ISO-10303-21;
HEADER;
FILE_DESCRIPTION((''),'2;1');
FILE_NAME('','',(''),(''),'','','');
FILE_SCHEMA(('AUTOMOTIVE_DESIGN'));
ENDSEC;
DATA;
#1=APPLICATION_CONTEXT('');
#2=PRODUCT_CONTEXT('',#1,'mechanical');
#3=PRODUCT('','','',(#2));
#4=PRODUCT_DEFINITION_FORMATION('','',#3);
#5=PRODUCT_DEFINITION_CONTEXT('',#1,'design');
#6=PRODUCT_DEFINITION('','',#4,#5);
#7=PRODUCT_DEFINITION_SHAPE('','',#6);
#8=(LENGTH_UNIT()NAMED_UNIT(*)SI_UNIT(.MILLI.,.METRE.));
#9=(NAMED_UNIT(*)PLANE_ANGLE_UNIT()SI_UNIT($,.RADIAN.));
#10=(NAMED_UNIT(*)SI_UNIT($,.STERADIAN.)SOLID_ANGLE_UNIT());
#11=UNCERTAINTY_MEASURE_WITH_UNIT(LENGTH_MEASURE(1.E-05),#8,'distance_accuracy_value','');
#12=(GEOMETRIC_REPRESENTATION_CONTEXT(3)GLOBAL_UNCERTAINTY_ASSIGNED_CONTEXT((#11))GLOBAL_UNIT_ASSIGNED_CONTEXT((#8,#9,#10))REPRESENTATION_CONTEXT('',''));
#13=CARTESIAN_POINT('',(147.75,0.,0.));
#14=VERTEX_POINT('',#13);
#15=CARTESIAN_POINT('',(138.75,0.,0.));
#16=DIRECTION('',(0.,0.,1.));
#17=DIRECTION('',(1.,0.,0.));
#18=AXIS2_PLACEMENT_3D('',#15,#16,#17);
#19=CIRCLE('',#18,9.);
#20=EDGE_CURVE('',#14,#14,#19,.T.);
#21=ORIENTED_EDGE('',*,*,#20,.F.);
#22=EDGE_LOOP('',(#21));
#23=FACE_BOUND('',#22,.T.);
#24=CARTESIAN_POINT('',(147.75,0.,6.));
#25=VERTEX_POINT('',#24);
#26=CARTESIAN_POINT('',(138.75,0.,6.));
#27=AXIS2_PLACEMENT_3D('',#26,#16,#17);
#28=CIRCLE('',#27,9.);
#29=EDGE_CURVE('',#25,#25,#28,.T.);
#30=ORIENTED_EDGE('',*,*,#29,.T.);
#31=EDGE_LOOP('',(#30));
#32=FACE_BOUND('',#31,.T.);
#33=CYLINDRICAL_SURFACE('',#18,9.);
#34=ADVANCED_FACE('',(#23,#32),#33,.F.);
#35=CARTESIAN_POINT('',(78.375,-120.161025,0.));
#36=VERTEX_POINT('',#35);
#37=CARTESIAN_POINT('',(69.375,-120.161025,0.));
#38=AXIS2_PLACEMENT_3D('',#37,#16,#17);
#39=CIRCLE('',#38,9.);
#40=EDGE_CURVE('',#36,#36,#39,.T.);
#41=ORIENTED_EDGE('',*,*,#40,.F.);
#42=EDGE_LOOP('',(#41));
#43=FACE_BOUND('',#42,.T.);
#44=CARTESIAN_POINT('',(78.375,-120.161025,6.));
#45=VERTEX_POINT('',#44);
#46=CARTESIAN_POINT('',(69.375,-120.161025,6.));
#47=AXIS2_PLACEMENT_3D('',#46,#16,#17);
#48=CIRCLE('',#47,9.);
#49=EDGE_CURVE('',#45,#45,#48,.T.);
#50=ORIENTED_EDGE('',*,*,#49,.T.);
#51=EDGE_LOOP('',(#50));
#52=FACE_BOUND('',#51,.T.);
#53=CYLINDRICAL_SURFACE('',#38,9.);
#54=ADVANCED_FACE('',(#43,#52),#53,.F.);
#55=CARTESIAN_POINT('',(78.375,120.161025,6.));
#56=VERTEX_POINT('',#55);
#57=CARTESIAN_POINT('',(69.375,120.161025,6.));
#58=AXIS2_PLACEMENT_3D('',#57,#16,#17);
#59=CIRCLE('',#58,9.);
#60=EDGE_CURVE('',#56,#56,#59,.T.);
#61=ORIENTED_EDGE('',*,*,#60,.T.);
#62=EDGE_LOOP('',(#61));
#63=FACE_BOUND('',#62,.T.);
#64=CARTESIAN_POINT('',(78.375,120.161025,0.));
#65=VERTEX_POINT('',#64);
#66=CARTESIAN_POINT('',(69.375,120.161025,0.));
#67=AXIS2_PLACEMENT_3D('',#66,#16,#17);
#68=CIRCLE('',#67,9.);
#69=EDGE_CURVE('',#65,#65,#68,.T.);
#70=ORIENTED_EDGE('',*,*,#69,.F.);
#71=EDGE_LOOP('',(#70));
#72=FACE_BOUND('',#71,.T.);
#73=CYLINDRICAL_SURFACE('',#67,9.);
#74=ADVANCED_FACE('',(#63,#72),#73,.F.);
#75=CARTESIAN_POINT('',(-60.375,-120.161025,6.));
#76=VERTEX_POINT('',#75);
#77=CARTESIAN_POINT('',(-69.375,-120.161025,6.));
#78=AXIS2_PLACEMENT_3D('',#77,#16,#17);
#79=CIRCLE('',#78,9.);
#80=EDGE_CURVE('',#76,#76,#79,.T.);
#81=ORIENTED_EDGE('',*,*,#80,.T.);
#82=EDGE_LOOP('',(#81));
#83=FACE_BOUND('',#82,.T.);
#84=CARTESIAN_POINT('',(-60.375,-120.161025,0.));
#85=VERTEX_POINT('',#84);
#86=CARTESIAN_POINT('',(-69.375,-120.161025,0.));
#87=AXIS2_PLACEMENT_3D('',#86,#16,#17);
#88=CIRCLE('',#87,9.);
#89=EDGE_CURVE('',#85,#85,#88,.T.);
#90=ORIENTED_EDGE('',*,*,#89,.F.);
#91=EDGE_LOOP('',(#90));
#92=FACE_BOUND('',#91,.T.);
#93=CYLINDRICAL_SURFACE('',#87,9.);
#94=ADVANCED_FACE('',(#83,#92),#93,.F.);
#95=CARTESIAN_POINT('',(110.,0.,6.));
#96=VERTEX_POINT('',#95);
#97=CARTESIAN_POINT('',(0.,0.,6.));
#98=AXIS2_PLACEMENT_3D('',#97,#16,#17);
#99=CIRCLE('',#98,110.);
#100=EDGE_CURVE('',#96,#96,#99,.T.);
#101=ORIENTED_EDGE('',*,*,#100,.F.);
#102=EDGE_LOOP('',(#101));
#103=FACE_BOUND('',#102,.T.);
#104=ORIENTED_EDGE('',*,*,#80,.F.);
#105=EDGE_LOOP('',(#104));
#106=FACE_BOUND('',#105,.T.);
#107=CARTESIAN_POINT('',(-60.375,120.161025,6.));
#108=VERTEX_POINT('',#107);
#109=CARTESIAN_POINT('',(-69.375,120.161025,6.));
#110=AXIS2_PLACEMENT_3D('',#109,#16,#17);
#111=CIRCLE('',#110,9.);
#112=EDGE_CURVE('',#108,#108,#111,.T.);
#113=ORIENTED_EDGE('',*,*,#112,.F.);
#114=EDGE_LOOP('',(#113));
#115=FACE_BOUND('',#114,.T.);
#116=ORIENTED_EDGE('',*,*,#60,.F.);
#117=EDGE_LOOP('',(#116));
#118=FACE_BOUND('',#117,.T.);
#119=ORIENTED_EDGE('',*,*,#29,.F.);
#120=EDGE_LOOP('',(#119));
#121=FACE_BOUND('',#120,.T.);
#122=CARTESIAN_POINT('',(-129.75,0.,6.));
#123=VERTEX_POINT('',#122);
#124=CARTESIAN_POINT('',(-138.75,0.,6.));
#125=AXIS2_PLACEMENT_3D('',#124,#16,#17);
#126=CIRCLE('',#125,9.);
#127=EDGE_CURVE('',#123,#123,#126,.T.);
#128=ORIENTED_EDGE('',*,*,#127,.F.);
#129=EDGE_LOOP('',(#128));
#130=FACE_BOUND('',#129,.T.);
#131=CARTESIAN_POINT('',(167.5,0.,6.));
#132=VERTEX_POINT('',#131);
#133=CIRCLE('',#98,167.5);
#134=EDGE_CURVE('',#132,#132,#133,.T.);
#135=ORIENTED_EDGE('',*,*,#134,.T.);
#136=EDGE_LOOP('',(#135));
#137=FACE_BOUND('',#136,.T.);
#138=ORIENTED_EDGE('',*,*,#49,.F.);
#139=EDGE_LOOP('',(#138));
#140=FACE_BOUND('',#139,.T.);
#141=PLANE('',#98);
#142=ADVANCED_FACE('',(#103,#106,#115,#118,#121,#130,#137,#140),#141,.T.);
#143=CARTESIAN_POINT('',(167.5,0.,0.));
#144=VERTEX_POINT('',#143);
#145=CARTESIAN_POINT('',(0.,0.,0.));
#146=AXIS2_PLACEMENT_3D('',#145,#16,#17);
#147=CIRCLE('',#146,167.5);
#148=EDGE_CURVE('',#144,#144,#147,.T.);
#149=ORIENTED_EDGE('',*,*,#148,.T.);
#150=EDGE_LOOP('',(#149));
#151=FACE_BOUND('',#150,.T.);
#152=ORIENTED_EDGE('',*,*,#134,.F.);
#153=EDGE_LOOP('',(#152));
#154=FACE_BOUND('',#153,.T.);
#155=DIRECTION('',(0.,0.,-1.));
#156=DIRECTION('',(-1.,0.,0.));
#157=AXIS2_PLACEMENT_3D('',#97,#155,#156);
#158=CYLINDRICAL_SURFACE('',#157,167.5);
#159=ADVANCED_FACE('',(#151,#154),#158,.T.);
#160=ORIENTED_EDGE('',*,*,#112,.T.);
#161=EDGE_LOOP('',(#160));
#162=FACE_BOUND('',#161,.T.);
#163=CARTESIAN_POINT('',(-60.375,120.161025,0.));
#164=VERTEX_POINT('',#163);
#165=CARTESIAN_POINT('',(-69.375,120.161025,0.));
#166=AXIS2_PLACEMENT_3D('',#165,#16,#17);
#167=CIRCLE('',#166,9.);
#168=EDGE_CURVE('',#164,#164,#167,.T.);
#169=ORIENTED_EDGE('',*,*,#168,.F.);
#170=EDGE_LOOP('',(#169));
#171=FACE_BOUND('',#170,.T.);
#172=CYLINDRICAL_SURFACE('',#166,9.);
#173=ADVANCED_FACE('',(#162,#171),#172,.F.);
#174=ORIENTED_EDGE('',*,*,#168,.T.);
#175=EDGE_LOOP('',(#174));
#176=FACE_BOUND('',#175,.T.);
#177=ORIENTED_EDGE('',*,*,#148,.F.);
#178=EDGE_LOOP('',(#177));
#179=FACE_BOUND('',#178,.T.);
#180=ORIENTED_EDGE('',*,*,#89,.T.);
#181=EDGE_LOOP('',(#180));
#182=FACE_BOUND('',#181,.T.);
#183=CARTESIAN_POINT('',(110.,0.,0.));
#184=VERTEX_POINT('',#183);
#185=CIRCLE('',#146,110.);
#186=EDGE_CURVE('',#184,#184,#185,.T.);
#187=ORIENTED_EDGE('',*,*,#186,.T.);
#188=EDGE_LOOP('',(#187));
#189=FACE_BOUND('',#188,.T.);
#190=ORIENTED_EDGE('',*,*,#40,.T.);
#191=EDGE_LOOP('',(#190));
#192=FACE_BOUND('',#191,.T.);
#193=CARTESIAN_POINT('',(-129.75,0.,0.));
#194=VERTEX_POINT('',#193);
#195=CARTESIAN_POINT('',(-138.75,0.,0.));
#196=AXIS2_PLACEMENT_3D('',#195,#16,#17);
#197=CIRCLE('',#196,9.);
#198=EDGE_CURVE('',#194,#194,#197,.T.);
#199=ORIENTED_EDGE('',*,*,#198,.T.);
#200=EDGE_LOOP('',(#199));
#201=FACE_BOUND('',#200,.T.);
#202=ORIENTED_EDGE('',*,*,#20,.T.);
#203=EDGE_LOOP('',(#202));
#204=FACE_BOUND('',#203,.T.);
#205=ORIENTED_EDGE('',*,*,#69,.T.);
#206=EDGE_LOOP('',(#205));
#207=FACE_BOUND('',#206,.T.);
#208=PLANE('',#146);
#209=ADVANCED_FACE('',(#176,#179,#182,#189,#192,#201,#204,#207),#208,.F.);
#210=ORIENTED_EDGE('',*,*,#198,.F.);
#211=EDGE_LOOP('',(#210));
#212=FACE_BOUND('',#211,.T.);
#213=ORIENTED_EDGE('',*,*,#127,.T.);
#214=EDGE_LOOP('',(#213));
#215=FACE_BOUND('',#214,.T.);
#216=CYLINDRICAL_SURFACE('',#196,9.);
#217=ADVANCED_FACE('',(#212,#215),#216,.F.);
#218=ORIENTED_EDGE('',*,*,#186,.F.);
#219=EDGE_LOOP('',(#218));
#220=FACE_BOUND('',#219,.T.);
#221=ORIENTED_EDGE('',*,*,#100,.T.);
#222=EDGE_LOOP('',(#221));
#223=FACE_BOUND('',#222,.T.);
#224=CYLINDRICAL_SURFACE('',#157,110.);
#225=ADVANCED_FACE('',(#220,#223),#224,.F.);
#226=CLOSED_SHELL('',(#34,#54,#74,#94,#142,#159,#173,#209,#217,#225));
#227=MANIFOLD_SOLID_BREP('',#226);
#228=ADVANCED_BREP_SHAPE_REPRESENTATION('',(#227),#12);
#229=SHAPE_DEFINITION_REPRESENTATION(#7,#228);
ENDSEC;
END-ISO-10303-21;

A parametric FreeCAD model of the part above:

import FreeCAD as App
import Part
import Sketcher

V = App.Vector

doc = App.newDocument("Part")
params = doc.addObject("Spreadsheet::Sheet", "Params")
for row, (alias, value) in enumerate([
    ("sketch1_diameter", "335 mm"),
    ("sketch1_diameter2", "220 mm"),
    ("pad1_length", "6 mm"),
    ("sketch2_diameter", "18 mm"),
], start=1):
    params.set(f"A{row}", alias)
    params.set(f"B{row}", "=" + value)
    params.setAlias(f"B{row}", alias)

body = doc.addObject("PartDesign::Body", "Body")

# Sketch on XY plane
sketch1 = body.newObject("Sketcher::SketchObject", "Sketch")
sketch1.AttachmentSupport = (doc.getObject("XY_Plane"), [""])
sketch1.MapMode = "FlatFace"
sketch1.addGeometry(Part.Circle(V(0, 0, 0), V(0, 0, 1), 167.5), False)
sketch1.addGeometry(Part.Circle(V(0, 0, 0), V(0, 0, 1), 110), False)
sketch1.addConstraint(Sketcher.Constraint("Coincident", 0, 3, -1, 1))
sketch1.addConstraint(Sketcher.Constraint("Coincident", 1, 3, -1, 1))
sketch1.addConstraint(Sketcher.Constraint("Diameter", 0, 335.0))
sketch1.addConstraint(Sketcher.Constraint("Diameter", 1, 220.0))
sketch1.setExpression("Constraints[2]", "Params.sketch1_diameter")
sketch1.setExpression("Constraints[3]", "Params.sketch1_diameter2")
pad1 = body.newObject("PartDesign::Pad", "Pad")
pad1.Profile = sketch1
pad1.setExpression("Length", "Params.pad1_length")

# Sketch on XY plane
sketch2 = body.newObject("Sketcher::SketchObject", "Sketch001")
sketch2.AttachmentSupport = (doc.getObject("XY_Plane"), [""])
sketch2.MapMode = "FlatFace"
sketch2.AttachmentOffset = App.Placement(V(0, 0, 6), App.Rotation())
sketch2.addGeometry(Part.Circle(V(-69.375, 120.161025, 0), V(0, 0, 1), 9), False)
sketch2.addGeometry(Part.Circle(V(69.375, 120.161025, 0), V(0, 0, 1), 9), False)
sketch2.addGeometry(Part.Circle(V(138.75, 0, 0), V(0, 0, 1), 9), False)
sketch2.addGeometry(Part.Circle(V(69.375, -120.161025, 0), V(0, 0, 1), 9), False)
sketch2.addGeometry(Part.Circle(V(-69.375, -120.161025, 0), V(0, 0, 1), 9), False)
sketch2.addGeometry(Part.Circle(V(-138.75, 0, 0), V(0, 0, 1), 9), False)
sketch2.addConstraint(Sketcher.Constraint("Equal", 0, 1))
sketch2.addConstraint(Sketcher.Constraint("Equal", 1, 2))
sketch2.addConstraint(Sketcher.Constraint("Equal", 2, 3))
sketch2.addConstraint(Sketcher.Constraint("Equal", 3, 4))
sketch2.addConstraint(Sketcher.Constraint("Equal", 4, 5))
sketch2.addConstraint(Sketcher.Constraint("Symmetric", 0, 3, 3, 3, -1, 1))
sketch2.addConstraint(Sketcher.Constraint("Symmetric", 1, 3, 4, 3, -1, 1))
sketch2.addConstraint(Sketcher.Constraint("Symmetric", 2, 3, 5, 3, -1, 1))
sketch2.addConstraint(Sketcher.Constraint("Symmetric", 0, 3, 1, 3, -2))
sketch2.addConstraint(Sketcher.Constraint("PointOnObject", 2, 3, -1))
sketch2.addConstraint(Sketcher.Constraint("Diameter", 0, 18.0))
sketch2.addConstraint(Sketcher.Constraint("DistanceX", 5, 3, 2, 3, 277.5))
sketch2.addConstraint(Sketcher.Constraint("DistanceX", 0, 3, 1, 3, 138.75))
sketch2.addConstraint(Sketcher.Constraint("DistanceY", 3, 3, 1, 3, 240.32205))
sketch2.setExpression("Constraints[10]", "Params.sketch2_diameter")
pocket1 = body.newObject("PartDesign::Pocket", "Pocket")
pocket1.Profile = sketch2
pocket1.Type = "ThroughAll"

doc.recompute()
